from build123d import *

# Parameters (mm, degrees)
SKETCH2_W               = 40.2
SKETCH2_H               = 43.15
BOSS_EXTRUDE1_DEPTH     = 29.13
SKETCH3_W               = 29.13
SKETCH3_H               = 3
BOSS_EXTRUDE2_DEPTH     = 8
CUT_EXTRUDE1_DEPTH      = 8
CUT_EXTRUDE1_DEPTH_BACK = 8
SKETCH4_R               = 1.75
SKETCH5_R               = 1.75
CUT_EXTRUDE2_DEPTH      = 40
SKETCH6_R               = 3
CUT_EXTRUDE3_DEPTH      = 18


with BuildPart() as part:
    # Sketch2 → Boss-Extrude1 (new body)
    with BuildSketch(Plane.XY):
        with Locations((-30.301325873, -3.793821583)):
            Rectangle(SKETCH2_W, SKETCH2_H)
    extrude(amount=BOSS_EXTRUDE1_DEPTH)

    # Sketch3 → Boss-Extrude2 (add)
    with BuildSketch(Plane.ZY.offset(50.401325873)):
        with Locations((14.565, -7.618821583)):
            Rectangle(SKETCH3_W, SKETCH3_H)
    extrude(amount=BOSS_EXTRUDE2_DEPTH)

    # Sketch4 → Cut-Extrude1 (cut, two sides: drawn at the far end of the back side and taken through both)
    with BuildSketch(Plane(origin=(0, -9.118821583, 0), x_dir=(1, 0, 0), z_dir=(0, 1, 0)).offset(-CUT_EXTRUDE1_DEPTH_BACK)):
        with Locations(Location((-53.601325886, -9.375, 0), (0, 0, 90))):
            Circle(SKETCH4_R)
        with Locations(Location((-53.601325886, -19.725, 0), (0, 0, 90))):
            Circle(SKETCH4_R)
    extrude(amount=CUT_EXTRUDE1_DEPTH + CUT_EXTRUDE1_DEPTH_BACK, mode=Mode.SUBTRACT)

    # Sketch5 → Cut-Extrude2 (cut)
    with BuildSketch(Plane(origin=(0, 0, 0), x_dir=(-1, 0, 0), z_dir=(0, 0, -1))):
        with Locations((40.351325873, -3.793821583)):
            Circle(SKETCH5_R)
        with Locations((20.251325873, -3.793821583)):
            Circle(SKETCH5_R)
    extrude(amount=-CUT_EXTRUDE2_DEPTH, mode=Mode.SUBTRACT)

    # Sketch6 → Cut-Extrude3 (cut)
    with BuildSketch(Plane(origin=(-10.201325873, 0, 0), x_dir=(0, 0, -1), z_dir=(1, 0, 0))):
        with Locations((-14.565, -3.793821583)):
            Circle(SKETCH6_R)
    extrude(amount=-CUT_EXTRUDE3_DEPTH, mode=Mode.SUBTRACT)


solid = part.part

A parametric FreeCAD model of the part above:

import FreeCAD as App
import Part
import Sketcher
Q = App.Units.Quantity

doc = App.newDocument("Part")
params = doc.addObject("Spreadsheet::Sheet", "Params")
for row, (alias, value) in enumerate([
    ("sketch1_width", "40.2 mm"),
    ("sketch1_height", "43.15 mm"),
    ("pad1_length", "29.13 mm"),
    ("sketch2_width", "3 mm"),
    ("sketch2_height", "29.13 mm"),
    ("pad2_length", "8 mm"),
    ("sketch3_diameter", "3.5 mm"),
    ("sketch4_diameter", "3.5 mm"),
    ("pocket2_length", "40 mm"),
    ("sketch5_diameter", "6 mm"),
    ("pocket3_length", "18 mm"),
], start=1):
    params.set(f"A{row}", alias)
    params.set(f"B{row}", "=" + value)
    params.setAlias(f"B{row}", alias)

body = doc.addObject("PartDesign::Body", "Body")

sketch1 = body.newObject("Sketcher::SketchObject", "Sketch")
sketch1.AttachmentSupport = (doc.getObject("XY_Plane"), [""])
sketch1.MapMode = "FlatFace"
sketch1.addGeometry([
    Part.LineSegment(App.Vector(-50, 18, 0), App.Vector(-50, -25, 0)),
    Part.LineSegment(App.Vector(-50, -25, 0), App.Vector(-10, -25, 0)),
    Part.LineSegment(App.Vector(-10, -25, 0), App.Vector(-10, 18, 0)),
    Part.LineSegment(App.Vector(-10, 18, 0), App.Vector(-50, 18, 0)),
], False)
sketch1.addConstraint([
    Sketcher.Constraint("Coincident", 0, 2, 1, 1),
    Sketcher.Constraint("Coincident", 1, 2, 2, 1),
    Sketcher.Constraint("Coincident", 2, 2, 3, 1),
    Sketcher.Constraint("Coincident", 3, 2, 0, 1),
    Sketcher.Constraint("Vertical", 0),
    Sketcher.Constraint("Horizontal", 1),
    Sketcher.Constraint("Vertical", 2),
    Sketcher.Constraint("Horizontal", 3),
    Sketcher.Constraint("DistanceX", 1, 1, 1, 2, Q("40.2 mm")),
    Sketcher.Constraint("DistanceY", 0, 2, 0, 1, Q("43.15 mm")),
    Sketcher.Constraint("DistanceY", 0, 2, -1, 1, Q("25.368822 mm")),
    Sketcher.Constraint("DistanceX", 0, 2, -1, 1, Q("50.401326 mm")),
])
sketch1.setExpression("Constraints[8]", "Params.sketch1_width")
sketch1.setExpression("Constraints[9]", "Params.sketch1_height")
pad1 = body.newObject("PartDesign::Pad", "Pad")
pad1.Profile = sketch1
pad1.setExpression("Length", "Params.pad1_length")

sketch2 = body.newObject("Sketcher::SketchObject", "Sketch001")
sketch2.AttachmentSupport = (doc.getObject("YZ_Plane"), [""])
sketch2.MapMode = "FlatFace"
sketch2.AttachmentOffset = App.Placement(App.Vector(0, 0, -50.401326), App.Rotation())
sketch2.addGeometry([
    Part.LineSegment(App.Vector(-6.1, 0, 0), App.Vector(-9.1, 0, 0)),
    Part.LineSegment(App.Vector(-9.1, 0, 0), App.Vector(-9.1, 29.1, 0)),
    Part.LineSegment(App.Vector(-9.1, 29.1, 0), App.Vector(-6.1, 29.1, 0)),
    Part.LineSegment(App.Vector(-6.1, 29.1, 0), App.Vector(-6.1, 0, 0)),
], False)
sketch2.addConstraint([
    Sketcher.Constraint("Coincident", 0, 2, 1, 1),
    Sketcher.Constraint("Coincident", 1, 2, 2, 1),
    Sketcher.Constraint("Coincident", 2, 2, 3, 1),
    Sketcher.Constraint("Coincident", 3, 2, 0, 1),
    Sketcher.Constraint("Horizontal", 0),
    Sketcher.Constraint("Vertical", 1),
    Sketcher.Constraint("Horizontal", 2),
    Sketcher.Constraint("Vertical", 3),
    Sketcher.Constraint("PointOnObject", 0, 2, -1),
    Sketcher.Constraint("DistanceX", 0, 2, 0, 1, Q("3 mm")),
    Sketcher.Constraint("DistanceY", 1, 1, 1, 2, Q("29.13 mm")),
    Sketcher.Constraint("DistanceX", 0, 2, -1, 1, Q("9.118822 mm")),
])
sketch2.setExpression("Constraints[9]", "Params.sketch2_width")
sketch2.setExpression("Constraints[10]", "Params.sketch2_height")
pad2 = body.newObject("PartDesign::Pad", "Pad001")
pad2.Profile = sketch2
pad2.setExpression("Length", "Params.pad2_length")
pad2.Reversed = True

sketch3 = body.newObject("Sketcher::SketchObject", "Sketch002")
sketch3.AttachmentSupport = (doc.getObject("XZ_Plane"), [""])
sketch3.MapMode = "FlatFace"
sketch3.AttachmentOffset = App.Placement(App.Vector(0, 0, 9.118822), App.Rotation())
sketch3.addGeometry([
    Part.Circle(App.Vector(-53.6, 9.4, 0), App.Vector(0, 0, 1), 1.8),
    Part.Circle(App.Vector(-53.6, 19.7, 0), App.Vector(0, 0, 1), 1.8),
], False)
sketch3.addConstraint([
    Sketcher.Constraint("Equal", 0, 1),
    Sketcher.Constraint("Vertical", 0, 3, 1, 3),
    Sketcher.Constraint("Diameter", 0, Q("3.5 mm")),
    Sketcher.Constraint("DistanceY", 0, 3, 1, 3, Q("10.35 mm")),
    Sketcher.Constraint("DistanceY", -1, 1, 0, 3, Q("9.375 mm")),
    Sketcher.Constraint("DistanceX", 0, 3, -1, 1, Q("53.601326 mm")),
])
sketch3.setExpression("Constraints[2]", "Params.sketch3_diameter")
pocket1 = body.newObject("PartDesign::Pocket", "Pocket")
pocket1.Profile = sketch3
pocket1.Type = "ThroughAll"
pocket1.Midplane = True

sketch4 = body.newObject("Sketcher::SketchObject", "Sketch003")
sketch4.AttachmentSupport = (doc.getObject("XY_Plane"), [""])
sketch4.MapMode = "FlatFace"
sketch4.addGeometry([
    Part.Circle(App.Vector(-40.4, -3.8, 0), App.Vector(0, 0, 1), 1.8),
    Part.Circle(App.Vector(-20.3, -3.8, 0), App.Vector(0, 0, 1), 1.8),
], False)
sketch4.addConstraint([
    Sketcher.Constraint("Equal", 0, 1),
    Sketcher.Constraint("Horizontal", 0, 3, 1, 3),
    Sketcher.Constraint("Diameter", 0, Q("3.5 mm")),
    Sketcher.Constraint("DistanceX", 0, 3, 1, 3, Q("20.1 mm")),
    Sketcher.Constraint("DistanceY", 0, 3, -1, 1, Q("3.793822 mm")),
    Sketcher.Constraint("DistanceX", 0, 3, -1, 1, Q("40.351326 mm")),
])
sketch4.setExpression("Constraints[2]", "Params.sketch4_diameter")
pocket2 = body.newObject("PartDesign::Pocket", "Pocket001")
pocket2.Profile = sketch4
pocket2.setExpression("Length", "Params.pocket2_length")
pocket2.Reversed = True

sketch5 = body.newObject("Sketcher::SketchObject", "Sketch004")
sketch5.AttachmentSupport = (doc.getObject("YZ_Plane"), [""])
sketch5.MapMode = "FlatFace"
sketch5.AttachmentOffset = App.Placement(App.Vector(0, 0, -10.201326), App.Rotation())
sketch5.addGeometry(Part.Circle(App.Vector(-3.8, 14.6, 0), App.Vector(0, 0, 1), 3), False)
sketch5.addConstraint([
    Sketcher.Constraint("Diameter", 0, Q("6 mm")),
    Sketcher.Constraint("DistanceY", -1, 1, 0, 3, Q("14.565 mm")),
    Sketcher.Constraint("DistanceX", 0, 3, -1, 1, Q("3.793822 mm")),
])
sketch5.setExpression("Constraints[0]", "Params.sketch5_diameter")
pocket3 = body.newObject("PartDesign::Pocket", "Pocket002")
pocket3.Profile = sketch5
pocket3.setExpression("Length", "Params.pocket3_length")

doc.recompute()
